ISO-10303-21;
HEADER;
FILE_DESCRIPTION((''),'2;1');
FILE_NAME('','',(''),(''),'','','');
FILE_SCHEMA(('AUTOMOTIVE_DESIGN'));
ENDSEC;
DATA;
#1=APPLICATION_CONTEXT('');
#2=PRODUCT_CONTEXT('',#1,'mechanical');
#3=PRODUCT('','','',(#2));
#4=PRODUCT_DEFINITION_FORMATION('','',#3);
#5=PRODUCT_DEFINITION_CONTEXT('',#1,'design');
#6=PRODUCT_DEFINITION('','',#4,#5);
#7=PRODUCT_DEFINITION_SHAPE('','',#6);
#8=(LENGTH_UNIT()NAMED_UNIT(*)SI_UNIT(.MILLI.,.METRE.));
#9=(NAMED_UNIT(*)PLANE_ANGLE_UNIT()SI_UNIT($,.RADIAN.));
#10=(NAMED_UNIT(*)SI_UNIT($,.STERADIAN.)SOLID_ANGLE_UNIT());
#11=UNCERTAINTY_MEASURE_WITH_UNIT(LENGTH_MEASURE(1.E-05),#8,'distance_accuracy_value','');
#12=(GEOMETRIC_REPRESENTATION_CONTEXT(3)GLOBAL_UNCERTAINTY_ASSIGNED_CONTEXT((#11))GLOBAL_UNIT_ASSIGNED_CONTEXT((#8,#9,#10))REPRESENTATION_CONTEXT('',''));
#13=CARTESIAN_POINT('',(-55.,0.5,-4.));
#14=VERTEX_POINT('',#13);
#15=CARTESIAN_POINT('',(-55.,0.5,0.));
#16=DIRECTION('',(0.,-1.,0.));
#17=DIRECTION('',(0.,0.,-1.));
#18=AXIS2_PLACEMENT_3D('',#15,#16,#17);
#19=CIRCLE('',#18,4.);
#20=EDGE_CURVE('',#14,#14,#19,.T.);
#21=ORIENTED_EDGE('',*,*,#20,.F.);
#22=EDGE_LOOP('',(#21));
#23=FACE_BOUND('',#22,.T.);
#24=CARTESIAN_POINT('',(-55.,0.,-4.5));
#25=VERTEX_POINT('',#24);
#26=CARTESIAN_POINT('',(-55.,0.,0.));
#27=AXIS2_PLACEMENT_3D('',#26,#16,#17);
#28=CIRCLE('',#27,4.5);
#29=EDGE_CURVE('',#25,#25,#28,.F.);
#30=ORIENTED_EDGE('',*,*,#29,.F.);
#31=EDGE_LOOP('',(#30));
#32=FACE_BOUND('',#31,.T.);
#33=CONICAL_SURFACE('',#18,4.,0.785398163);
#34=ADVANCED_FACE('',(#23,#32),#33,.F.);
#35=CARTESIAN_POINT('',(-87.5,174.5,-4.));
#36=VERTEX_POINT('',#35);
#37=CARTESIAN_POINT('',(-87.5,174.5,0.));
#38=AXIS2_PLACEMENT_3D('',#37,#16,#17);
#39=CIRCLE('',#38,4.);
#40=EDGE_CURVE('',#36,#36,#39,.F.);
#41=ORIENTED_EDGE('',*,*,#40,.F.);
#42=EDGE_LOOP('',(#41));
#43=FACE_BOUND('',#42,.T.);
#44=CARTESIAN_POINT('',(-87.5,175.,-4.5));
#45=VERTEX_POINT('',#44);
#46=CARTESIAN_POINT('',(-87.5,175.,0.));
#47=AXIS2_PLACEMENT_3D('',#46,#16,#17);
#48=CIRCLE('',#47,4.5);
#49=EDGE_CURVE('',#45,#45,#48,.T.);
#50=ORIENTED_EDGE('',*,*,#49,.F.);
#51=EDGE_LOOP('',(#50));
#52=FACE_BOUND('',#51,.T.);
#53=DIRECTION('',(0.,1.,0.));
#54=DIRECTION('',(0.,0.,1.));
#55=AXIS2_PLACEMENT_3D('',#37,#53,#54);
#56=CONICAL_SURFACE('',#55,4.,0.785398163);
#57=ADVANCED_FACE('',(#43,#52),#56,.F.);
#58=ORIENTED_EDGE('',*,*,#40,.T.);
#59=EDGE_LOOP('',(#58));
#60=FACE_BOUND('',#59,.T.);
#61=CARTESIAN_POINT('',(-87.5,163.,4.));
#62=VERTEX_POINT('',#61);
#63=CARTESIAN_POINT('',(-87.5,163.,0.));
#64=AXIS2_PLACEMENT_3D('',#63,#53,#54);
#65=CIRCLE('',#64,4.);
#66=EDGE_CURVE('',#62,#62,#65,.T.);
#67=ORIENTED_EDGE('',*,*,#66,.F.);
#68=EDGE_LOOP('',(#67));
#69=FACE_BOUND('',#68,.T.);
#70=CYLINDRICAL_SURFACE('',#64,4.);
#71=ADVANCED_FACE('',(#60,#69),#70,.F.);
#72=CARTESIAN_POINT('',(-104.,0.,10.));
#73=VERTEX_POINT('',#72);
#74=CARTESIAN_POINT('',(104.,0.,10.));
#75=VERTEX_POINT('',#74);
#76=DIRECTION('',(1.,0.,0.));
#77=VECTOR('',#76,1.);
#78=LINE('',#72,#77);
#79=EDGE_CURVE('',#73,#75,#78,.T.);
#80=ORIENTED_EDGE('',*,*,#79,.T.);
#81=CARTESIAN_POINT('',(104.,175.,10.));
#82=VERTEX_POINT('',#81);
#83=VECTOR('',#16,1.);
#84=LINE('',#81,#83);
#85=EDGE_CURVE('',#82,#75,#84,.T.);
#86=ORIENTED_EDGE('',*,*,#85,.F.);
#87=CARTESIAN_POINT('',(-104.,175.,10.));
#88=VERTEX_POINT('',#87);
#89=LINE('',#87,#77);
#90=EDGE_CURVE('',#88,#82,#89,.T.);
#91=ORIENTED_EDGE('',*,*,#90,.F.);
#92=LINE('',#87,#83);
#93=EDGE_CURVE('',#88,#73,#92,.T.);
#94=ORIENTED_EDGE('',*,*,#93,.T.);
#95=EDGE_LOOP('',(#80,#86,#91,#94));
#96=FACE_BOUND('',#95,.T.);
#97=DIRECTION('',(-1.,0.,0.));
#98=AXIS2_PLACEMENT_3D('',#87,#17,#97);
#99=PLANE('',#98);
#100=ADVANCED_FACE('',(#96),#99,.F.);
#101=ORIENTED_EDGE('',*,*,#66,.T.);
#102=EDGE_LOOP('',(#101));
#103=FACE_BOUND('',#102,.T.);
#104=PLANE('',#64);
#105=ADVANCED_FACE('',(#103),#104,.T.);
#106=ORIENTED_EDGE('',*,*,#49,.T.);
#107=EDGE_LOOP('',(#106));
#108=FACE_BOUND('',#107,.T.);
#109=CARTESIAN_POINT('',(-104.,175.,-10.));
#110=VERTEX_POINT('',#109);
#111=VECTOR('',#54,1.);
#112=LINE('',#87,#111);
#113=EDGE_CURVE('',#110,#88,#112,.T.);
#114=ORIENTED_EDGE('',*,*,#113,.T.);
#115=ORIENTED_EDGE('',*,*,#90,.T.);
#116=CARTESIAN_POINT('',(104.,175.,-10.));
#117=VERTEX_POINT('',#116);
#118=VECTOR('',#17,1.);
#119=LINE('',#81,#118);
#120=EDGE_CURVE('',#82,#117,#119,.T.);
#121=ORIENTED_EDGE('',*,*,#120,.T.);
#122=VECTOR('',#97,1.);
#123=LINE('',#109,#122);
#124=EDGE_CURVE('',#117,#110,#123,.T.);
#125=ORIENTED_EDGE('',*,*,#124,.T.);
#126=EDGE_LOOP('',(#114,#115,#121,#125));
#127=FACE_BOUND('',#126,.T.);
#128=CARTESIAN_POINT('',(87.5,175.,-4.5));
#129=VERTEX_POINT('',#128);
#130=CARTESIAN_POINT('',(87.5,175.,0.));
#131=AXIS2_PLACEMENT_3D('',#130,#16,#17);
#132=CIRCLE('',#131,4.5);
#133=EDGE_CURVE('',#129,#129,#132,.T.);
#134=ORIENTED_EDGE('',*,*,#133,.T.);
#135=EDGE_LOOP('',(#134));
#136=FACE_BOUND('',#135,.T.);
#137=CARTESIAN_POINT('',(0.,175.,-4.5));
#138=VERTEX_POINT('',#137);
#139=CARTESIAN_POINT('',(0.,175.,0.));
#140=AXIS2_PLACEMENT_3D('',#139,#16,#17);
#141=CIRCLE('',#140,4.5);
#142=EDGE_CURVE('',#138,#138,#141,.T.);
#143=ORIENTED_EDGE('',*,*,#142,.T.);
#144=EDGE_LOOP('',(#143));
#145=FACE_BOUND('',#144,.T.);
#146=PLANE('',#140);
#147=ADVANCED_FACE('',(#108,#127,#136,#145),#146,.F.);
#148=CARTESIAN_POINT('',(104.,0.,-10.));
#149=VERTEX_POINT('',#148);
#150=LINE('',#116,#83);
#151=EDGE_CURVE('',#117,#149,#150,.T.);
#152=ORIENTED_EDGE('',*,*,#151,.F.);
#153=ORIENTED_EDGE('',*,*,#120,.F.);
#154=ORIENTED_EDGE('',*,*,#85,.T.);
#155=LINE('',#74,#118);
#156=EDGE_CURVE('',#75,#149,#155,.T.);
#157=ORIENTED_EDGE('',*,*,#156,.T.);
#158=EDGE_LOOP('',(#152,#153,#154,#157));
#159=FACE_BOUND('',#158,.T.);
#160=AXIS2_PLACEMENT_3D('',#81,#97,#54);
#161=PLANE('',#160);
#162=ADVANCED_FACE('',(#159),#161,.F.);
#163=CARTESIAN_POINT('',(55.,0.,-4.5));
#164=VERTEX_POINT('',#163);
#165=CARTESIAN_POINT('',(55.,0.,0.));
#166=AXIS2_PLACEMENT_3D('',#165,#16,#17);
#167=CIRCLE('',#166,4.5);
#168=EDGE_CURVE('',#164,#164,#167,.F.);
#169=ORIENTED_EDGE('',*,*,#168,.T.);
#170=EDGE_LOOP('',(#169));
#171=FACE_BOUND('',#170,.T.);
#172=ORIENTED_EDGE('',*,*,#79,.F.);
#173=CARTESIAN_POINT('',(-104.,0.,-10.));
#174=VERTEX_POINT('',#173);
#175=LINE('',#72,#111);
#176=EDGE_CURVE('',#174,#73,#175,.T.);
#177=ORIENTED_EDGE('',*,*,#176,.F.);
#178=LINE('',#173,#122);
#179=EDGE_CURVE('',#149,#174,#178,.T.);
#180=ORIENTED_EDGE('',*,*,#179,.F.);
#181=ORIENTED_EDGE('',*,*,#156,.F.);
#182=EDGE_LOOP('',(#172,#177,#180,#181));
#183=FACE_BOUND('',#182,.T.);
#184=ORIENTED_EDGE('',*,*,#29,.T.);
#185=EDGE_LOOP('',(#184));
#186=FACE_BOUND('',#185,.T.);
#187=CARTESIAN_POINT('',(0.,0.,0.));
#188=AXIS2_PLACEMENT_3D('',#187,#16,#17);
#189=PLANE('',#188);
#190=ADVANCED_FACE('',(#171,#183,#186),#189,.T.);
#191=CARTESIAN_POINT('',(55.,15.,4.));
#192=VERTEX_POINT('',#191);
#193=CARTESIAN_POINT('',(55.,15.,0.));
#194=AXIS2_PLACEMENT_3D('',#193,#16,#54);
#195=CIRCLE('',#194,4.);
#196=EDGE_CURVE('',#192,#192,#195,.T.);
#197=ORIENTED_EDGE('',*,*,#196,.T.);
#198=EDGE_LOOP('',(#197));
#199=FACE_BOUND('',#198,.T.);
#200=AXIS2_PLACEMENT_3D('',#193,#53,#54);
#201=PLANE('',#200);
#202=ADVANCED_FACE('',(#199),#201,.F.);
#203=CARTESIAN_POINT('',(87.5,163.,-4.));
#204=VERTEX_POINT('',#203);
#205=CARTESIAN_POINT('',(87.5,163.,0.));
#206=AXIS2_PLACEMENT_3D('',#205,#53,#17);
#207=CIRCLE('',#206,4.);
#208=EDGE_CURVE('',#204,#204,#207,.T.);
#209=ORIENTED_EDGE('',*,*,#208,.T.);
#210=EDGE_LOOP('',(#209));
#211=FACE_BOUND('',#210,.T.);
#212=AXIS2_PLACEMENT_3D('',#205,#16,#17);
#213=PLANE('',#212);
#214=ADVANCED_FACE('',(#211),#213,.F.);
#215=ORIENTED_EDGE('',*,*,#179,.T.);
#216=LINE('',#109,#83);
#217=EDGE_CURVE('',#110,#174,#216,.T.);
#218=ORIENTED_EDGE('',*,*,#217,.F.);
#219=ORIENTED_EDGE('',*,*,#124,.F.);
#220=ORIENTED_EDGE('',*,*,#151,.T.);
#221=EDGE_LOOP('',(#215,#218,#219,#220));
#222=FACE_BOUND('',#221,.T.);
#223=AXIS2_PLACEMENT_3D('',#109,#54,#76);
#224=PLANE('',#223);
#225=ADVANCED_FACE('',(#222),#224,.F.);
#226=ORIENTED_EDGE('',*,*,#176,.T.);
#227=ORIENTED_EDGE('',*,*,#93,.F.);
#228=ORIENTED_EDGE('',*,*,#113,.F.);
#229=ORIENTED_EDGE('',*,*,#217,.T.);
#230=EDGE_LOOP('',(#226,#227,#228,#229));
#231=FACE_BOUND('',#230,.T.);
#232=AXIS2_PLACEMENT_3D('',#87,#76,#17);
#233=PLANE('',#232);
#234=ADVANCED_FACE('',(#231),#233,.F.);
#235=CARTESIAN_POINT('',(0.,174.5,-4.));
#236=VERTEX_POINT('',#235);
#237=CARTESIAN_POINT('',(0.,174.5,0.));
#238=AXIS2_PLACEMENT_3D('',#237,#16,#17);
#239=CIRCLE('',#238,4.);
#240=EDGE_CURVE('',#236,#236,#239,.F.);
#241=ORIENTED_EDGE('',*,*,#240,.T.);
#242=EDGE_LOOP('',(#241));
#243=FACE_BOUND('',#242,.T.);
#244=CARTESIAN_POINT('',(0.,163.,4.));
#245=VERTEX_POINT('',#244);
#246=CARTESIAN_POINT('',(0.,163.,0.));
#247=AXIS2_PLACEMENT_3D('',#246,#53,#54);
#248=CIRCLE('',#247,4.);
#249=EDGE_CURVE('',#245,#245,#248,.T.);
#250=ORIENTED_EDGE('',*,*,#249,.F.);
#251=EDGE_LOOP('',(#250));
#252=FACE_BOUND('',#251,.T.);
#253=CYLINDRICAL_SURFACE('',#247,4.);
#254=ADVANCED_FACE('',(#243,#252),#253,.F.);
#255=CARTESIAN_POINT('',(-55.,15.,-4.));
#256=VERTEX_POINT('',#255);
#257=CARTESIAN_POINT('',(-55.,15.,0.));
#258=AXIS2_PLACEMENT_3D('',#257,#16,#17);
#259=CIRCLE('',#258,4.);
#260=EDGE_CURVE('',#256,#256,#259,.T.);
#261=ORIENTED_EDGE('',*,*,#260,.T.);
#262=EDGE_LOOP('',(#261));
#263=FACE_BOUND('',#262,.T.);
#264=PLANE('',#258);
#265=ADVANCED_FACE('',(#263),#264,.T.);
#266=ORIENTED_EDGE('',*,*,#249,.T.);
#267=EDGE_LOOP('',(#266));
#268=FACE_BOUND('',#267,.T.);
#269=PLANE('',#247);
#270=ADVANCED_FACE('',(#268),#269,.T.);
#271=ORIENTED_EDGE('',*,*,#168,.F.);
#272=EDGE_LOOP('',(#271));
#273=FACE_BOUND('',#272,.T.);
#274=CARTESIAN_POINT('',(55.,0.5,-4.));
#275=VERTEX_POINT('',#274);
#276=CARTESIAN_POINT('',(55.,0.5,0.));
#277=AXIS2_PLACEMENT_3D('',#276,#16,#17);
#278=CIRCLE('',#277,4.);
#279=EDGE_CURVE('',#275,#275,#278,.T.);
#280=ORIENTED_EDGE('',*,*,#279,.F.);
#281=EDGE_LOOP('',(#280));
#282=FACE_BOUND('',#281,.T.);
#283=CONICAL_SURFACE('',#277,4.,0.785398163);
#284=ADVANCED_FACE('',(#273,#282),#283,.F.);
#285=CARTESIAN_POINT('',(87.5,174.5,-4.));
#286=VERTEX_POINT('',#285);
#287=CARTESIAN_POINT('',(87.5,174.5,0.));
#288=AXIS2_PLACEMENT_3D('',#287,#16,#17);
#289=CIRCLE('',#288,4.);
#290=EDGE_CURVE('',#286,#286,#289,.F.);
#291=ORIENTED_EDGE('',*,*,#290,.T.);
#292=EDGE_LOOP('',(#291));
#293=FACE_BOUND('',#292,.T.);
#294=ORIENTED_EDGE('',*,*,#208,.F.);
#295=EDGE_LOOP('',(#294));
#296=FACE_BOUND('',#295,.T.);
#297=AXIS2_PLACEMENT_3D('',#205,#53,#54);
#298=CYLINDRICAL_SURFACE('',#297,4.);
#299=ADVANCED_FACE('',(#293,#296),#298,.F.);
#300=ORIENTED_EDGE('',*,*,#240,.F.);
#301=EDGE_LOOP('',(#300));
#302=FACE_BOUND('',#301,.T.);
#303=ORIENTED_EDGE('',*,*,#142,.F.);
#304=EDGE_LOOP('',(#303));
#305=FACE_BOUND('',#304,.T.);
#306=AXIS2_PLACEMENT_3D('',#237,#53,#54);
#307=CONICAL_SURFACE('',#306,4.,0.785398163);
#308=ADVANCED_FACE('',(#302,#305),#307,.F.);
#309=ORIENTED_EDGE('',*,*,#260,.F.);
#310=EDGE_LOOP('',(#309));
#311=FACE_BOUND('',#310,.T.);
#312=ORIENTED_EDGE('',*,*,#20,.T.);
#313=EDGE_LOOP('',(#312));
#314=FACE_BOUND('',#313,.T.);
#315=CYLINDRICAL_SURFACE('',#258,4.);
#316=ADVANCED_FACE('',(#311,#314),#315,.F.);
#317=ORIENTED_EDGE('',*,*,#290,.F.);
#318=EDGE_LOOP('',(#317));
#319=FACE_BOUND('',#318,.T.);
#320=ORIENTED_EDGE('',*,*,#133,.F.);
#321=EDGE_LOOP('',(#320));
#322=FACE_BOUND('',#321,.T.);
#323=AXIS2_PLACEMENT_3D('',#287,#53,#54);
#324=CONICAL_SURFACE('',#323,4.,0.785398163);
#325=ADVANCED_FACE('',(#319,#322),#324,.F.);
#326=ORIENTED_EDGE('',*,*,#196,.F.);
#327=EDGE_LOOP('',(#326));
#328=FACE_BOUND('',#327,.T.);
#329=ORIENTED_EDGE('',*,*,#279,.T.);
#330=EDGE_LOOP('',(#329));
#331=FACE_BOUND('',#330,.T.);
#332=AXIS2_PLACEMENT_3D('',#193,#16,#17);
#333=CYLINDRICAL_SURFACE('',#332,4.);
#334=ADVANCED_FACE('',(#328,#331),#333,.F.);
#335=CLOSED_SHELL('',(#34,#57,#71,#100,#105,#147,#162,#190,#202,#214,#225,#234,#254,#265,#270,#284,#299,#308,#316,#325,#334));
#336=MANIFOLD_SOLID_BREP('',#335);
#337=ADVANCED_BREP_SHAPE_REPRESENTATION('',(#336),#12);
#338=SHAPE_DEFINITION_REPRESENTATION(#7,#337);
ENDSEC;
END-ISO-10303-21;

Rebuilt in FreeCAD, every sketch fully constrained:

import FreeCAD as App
import Part
import Sketcher
Q = App.Units.Quantity


def edges_at(feature, points):
    """Names of the edges that pass closest to the given points."""
    edges = feature.Shape.Edges
    near = lambda p: min(range(len(edges)), key=lambda i: edges[i].distToShape(Part.Vertex(*p))[0])
    return sorted({f"Edge{near(p) + 1}" for p in points})

doc = App.newDocument("Part")
params = doc.addObject("Spreadsheet::Sheet", "Params")
for row, (alias, value) in enumerate([
    ("sketch1_width", "208 mm"),
    ("sketch1_height", "20 mm"),
    ("pad1_length", "175 mm"),
    ("sketch2_diameter", "8 mm"),
    ("pocket1_length", "12 mm"),
    ("sketch3_diameter", "8 mm"),
    ("pocket2_length", "15 mm"),
    ("chamfer_size", "0.5 mm"),
], start=1):
    params.set(f"A{row}", alias)
    params.set(f"B{row}", "=" + value)
    params.setAlias(f"B{row}", alias)

body = doc.addObject("PartDesign::Body", "Body")

sketch1 = doc.addObject("Sketcher::SketchObject", "Sketch")
body.addObject(sketch1)
sketch1.AttachmentSupport = (doc.XZ_Plane, [""])
sketch1.MapMode = "FlatFace"
sketch1.addGeometry(Part.LineSegment(App.Vector(-104, -10, 0), App.Vector(-104, 10, 0)), False)
sketch1.addGeometry(Part.LineSegment(App.Vector(-104, 10, 0), App.Vector(104, 10, 0)), False)
sketch1.addGeometry(Part.LineSegment(App.Vector(104, 10, 0), App.Vector(104, -10, 0)), False)
sketch1.addGeometry(Part.LineSegment(App.Vector(104, -10, 0), App.Vector(-104, -10, 0)), False)
sketch1.addConstraint(Sketcher.Constraint("Coincident", 0, 2, 1, 1))
sketch1.addConstraint(Sketcher.Constraint("Coincident", 1, 2, 2, 1))
sketch1.addConstraint(Sketcher.Constraint("Coincident", 2, 2, 3, 1))
sketch1.addConstraint(Sketcher.Constraint("Coincident", 3, 2, 0, 1))
sketch1.addConstraint(Sketcher.Constraint("Vertical", 0))
sketch1.addConstraint(Sketcher.Constraint("Horizontal", 1))
sketch1.addConstraint(Sketcher.Constraint("Vertical", 2))
sketch1.addConstraint(Sketcher.Constraint("Horizontal", 3))
sketch1.addConstraint(Sketcher.Constraint("Symmetric", 0, 2, 2, 2, -1, 1))
sketch1.addConstraint(Sketcher.Constraint("DistanceX", 1, 1, 1, 2, Q("208 mm")))
sketch1.addConstraint(Sketcher.Constraint("DistanceY", 0, 1, 0, 2, Q("20 mm")))
sketch1.setExpression("Constraints[9]", "Params.sketch1_width")
sketch1.setExpression("Constraints[10]", "Params.sketch1_height")
pad1 = doc.addObject("PartDesign::Pad", "Pad")
body.addObject(pad1)
pad1.Profile = sketch1
pad1.setExpression("Length", "Params.pad1_length")
pad1.Reversed = True

sketch2 = doc.addObject("Sketcher::SketchObject", "Sketch001")
body.addObject(sketch2)
sketch2.AttachmentSupport = (doc.XZ_Plane, [""])
sketch2.MapMode = "FlatFace"
sketch2.AttachmentOffset = App.Placement(App.Vector(0, 0, -175), App.Rotation())
sketch2.addGeometry(Part.Circle(App.Vector(0, 0, 0), App.Vector(0, 0, 1), 4), False)
sketch2.addGeometry(Part.Circle(App.Vector(-87.5, 0, 0), App.Vector(0, 0, 1), 4), False)
sketch2.addGeometry(Part.Circle(App.Vector(87.5, 0, 0), App.Vector(0, 0, 1), 4), False)
sketch2.addConstraint(Sketcher.Constraint("Coincident", 0, 3, -1, 1))
sketch2.addConstraint(Sketcher.Constraint("Equal", 0, 1))
sketch2.addConstraint(Sketcher.Constraint("Equal", 1, 2))
sketch2.addConstraint(Sketcher.Constraint("Symmetric", 1, 3, 2, 3, -1, 1))
sketch2.addConstraint(Sketcher.Constraint("PointOnObject", 1, 3, -1))
sketch2.addConstraint(Sketcher.Constraint("Diameter", 0, Q("8 mm")))
sketch2.addConstraint(Sketcher.Constraint("DistanceX", 1, 3, 2, 3, Q("175 mm")))
sketch2.setExpression("Constraints[5]", "Params.sketch2_diameter")
pocket1 = doc.addObject("PartDesign::Pocket", "Pocket")
body.addObject(pocket1)
pocket1.Profile = sketch2
pocket1.setExpression("Length", "Params.pocket1_length")
pocket1.Reversed = True

sketch3 = doc.addObject("Sketcher::SketchObject", "Sketch002")
body.addObject(sketch3)
sketch3.AttachmentSupport = (doc.XZ_Plane, [""])
sketch3.MapMode = "FlatFace"
sketch3.addGeometry(Part.Circle(App.Vector(-55, 0, 0), App.Vector(0, 0, 1), 4), False)
sketch3.addGeometry(Part.Circle(App.Vector(55, 0, 0), App.Vector(0, 0, 1), 4), False)
sketch3.addConstraint(Sketcher.Constraint("Equal", 0, 1))
sketch3.addConstraint(Sketcher.Constraint("Symmetric", 0, 3, 1, 3, -1, 1))
sketch3.addConstraint(Sketcher.Constraint("PointOnObject", 0, 3, -1))
sketch3.addConstraint(Sketcher.Constraint("Diameter", 0, Q("8 mm")))
sketch3.addConstraint(Sketcher.Constraint("DistanceX", 0, 3, -1, 1, Q("55 mm")))
sketch3.setExpression("Constraints[3]", "Params.sketch3_diameter")
pocket2 = doc.addObject("PartDesign::Pocket", "Pocket001")
body.addObject(pocket2)
pocket2.Profile = sketch3
pocket2.setExpression("Length", "Params.pocket2_length")
doc.recompute()

chamfer = doc.addObject("PartDesign::Chamfer", "Chamfer")
body.addObject(chamfer)
chamfer.Base = (pocket2, edges_at(pocket2, [
    (87.5, 175, 4),
    (-87.5, 175, -4),
    (0, 175, -4),
    (-55, 0, 4),
    (55, 0, -4),
]))
chamfer.setExpression("Size", "Params.chamfer_size")

doc.recompute()
